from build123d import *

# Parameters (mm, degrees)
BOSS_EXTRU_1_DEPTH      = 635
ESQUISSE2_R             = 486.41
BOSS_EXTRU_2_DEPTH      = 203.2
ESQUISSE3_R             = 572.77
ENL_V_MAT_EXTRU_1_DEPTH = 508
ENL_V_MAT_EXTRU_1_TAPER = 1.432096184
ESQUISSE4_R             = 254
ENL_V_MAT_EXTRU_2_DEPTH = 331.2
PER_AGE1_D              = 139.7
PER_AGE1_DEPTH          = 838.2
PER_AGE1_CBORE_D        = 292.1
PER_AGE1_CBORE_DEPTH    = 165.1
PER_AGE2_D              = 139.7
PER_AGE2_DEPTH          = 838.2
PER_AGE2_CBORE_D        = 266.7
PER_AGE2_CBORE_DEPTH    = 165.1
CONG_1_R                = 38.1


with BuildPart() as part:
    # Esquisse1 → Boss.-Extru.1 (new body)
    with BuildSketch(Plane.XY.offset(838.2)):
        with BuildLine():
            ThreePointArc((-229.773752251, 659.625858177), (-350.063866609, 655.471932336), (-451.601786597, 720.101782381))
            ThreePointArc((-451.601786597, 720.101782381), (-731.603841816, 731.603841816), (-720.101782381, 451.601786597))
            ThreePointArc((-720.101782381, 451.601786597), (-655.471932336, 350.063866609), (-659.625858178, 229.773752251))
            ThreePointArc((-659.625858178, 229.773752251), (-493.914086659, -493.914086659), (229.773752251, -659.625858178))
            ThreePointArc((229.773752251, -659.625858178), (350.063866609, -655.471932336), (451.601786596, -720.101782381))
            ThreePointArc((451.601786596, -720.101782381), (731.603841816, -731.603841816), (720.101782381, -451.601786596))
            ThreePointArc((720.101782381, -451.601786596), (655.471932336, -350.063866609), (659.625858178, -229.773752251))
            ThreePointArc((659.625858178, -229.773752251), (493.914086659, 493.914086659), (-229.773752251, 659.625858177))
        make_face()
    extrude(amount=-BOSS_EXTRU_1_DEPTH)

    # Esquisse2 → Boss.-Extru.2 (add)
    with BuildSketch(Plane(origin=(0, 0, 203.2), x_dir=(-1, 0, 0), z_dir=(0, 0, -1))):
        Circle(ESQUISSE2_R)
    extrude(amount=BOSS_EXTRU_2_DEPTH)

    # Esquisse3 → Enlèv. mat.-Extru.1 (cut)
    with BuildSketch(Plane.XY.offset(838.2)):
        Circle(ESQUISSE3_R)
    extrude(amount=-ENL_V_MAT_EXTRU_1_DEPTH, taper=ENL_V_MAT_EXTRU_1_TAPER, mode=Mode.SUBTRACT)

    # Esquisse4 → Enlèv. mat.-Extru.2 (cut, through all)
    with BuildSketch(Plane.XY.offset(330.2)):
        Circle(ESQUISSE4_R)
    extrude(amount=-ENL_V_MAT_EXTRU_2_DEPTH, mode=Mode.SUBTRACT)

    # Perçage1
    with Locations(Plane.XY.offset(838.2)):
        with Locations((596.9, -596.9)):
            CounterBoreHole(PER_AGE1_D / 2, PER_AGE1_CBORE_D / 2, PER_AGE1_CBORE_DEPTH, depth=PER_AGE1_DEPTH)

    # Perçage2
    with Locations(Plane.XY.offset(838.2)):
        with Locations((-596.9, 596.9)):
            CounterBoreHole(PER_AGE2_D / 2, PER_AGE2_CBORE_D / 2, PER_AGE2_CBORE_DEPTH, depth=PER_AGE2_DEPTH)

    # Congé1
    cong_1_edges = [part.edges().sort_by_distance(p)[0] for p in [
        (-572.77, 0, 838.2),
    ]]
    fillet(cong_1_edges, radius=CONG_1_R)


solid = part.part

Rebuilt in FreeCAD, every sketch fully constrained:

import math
import FreeCAD as App
import Part
import Sketcher
from FreeCAD import Vector
Q = App.Units.Quantity


def edges_at(feature, points):
    """Names of the edges that pass closest to the given points."""
    edges = feature.Shape.Edges
    near = lambda p: min(range(len(edges)), key=lambda i: edges[i].distToShape(Part.Vertex(*p))[0])
    return sorted({f"Edge{near(p) + 1}" for p in points})

doc = App.newDocument("Part")
params = doc.addObject("Spreadsheet::Sheet", "Params")
for row, (alias, value) in enumerate([
    ("sketch1_radius", "8 in"),
    ("sketch1_radius2", "7.5 in"),
    ("sketch1_radius3", "27.5 in"),
    ("pad1_length", "25 in"),
    ("sketch2_diameter", "38.3 in"),
    ("pad2_length", "8 in"),
    ("sketch3_diameter", "45.1 in"),
    ("pocket1_length", "20 in"),
    ("pocket1_taper", "-1.432096 deg"),
    ("sketch4_diameter", "20 in"),
    ("sketch5_diameter", "5.5 in"),
    ("hole_diameter", "5.5 in"),
    ("hole_depth", "33 in"),
    ("hole_cbore_diameter", "11.5 in"),
    ("hole_cbore_depth", "6.5 in"),
    ("sketch6_diameter", "5.5 in"),
    ("hole2_diameter", "5.5 in"),
    ("hole2_depth", "33 in"),
    ("hole2_cbore_diameter", "10.5 in"),
    ("hole2_cbore_depth", "6.5 in"),
    ("fillet_radius", "1.5 in"),
], start=1):
    params.set(f"A{row}", alias)
    params.set(f"B{row}", "=" + value)
    params.setAlias(f"B{row}", alias)

body = doc.addObject("PartDesign::Body", "Body")

sketch1 = body.newObject("Sketcher::SketchObject", "Sketch")
sketch1.AttachmentSupport = (doc.getObject("XY_Plane"), [""])
sketch1.MapMode = "FlatFace"
sketch1.AttachmentOffset = App.Placement(Vector(0, 0, 33 * 25.4), App.Rotation())
sketch1.addGeometry(Part.ArcOfCircle(Part.Circle(Vector(-297, 852, 0), Vector(0, 0, 1), 203), math.radians(-140), math.radians(-71)), False)
sketch1.addGeometry(Part.ArcOfCircle(Part.Circle(Vector(-597, 597, 0), Vector(0, 0, 1), 190), math.radians(40), math.radians(230)), False)
sketch1.addGeometry(Part.ArcOfCircle(Part.Circle(Vector(-852, 297, 0), Vector(0, 0, 1), 203), math.radians(-19), math.radians(50)), False)
sketch1.addGeometry(Part.ArcOfCircle(Part.Circle(Vector(0, 0, 0), Vector(0, 0, 1), 699), math.radians(161), math.radians(289)), False)
sketch1.addGeometry(Part.ArcOfCircle(Part.Circle(Vector(297, -852, 0), Vector(0, 0, 1), 203), math.radians(40), math.radians(109)), False)
sketch1.addGeometry(Part.ArcOfCircle(Part.Circle(Vector(597, -597, 0), Vector(0, 0, 1), 191), math.radians(-140), math.radians(50)), False)
sketch1.addGeometry(Part.ArcOfCircle(Part.Circle(Vector(852, -297, 0), Vector(0, 0, 1), 203), math.radians(161), math.radians(230)), False)
sketch1.addGeometry(Part.ArcOfCircle(Part.Circle(Vector(0, 0, 0), Vector(0, 0, 1), 698), math.radians(-19), math.radians(109)), False)
sketch1.addConstraint(Sketcher.Constraint("Tangent", 0, 1, 1, 1))
sketch1.addConstraint(Sketcher.Constraint("Tangent", 1, 2, 2, 2))
sketch1.addConstraint(Sketcher.Constraint("Tangent", 2, 1, 3, 1))
sketch1.addConstraint(Sketcher.Constraint("Tangent", 3, 2, 4, 2))
sketch1.addConstraint(Sketcher.Constraint("Tangent", 4, 1, 5, 1))
sketch1.addConstraint(Sketcher.Constraint("Tangent", 5, 2, 6, 2))
sketch1.addConstraint(Sketcher.Constraint("Tangent", 6, 1, 7, 1))
sketch1.addConstraint(Sketcher.Constraint("Tangent", 7, 2, 0, 2))
sketch1.addConstraint(Sketcher.Constraint("Coincident", 3, 3, -1, 1))
sketch1.addConstraint(Sketcher.Constraint("Coincident", 7, 3, -1, 1))
sketch1.addConstraint(Sketcher.Constraint("Equal", 0, 2))
sketch1.addConstraint(Sketcher.Constraint("Equal", 2, 4))
sketch1.addConstraint(Sketcher.Constraint("Equal", 1, 5))
sketch1.addConstraint(Sketcher.Constraint("Equal", 4, 6))
sketch1.addConstraint(Sketcher.Constraint("Equal", 3, 7))
sketch1.addConstraint(Sketcher.Constraint("Symmetric", 1, 3, 5, 3, -1, 1))
sketch1.addConstraint(Sketcher.Constraint("Radius", 0, Q("8 in")))
sketch1.addConstraint(Sketcher.Constraint("Radius", 1, Q("7.5 in")))
sketch1.addConstraint(Sketcher.Constraint("Radius", 3, Q("27.5 in")))
sketch1.addConstraint(Sketcher.Constraint("DistanceX", 1, 3, 5, 3, Q("47 in")))
sketch1.addConstraint(Sketcher.Constraint("DistanceY", 5, 3, 1, 3, Q("47 in")))
sketch1.setExpression("Constraints[16]", "Params.sketch1_radius")
sketch1.setExpression("Constraints[17]", "Params.sketch1_radius2")
sketch1.setExpression("Constraints[18]", "Params.sketch1_radius3")
pad1 = body.newObject("PartDesign::Pad", "Pad")
pad1.Profile = sketch1
pad1.setExpression("Length", "Params.pad1_length")
pad1.Reversed = True

sketch2 = body.newObject("Sketcher::SketchObject", "Sketch001")
sketch2.AttachmentSupport = (doc.getObject("XY_Plane"), [""])
sketch2.MapMode = "FlatFace"
sketch2.AttachmentOffset = App.Placement(Vector(0, 0, 8 * 25.4), App.Rotation())
sketch2.addGeometry(Part.Circle(Vector(0, 0, 0), Vector(0, 0, 1), 486), False)
sketch2.addConstraint(Sketcher.Constraint("Coincident", 0, 3, -1, 1))
sketch2.addConstraint(Sketcher.Constraint("Diameter", 0, Q("38.3 in")))
sketch2.setExpression("Constraints[1]", "Params.sketch2_diameter")
pad2 = body.newObject("PartDesign::Pad", "Pad001")
pad2.Profile = sketch2
pad2.setExpression("Length", "Params.pad2_length")
pad2.Reversed = True

sketch3 = body.newObject("Sketcher::SketchObject", "Sketch002")
sketch3.AttachmentSupport = (doc.getObject("XY_Plane"), [""])
sketch3.MapMode = "FlatFace"
sketch3.AttachmentOffset = App.Placement(Vector(0, 0, 33 * 25.4), App.Rotation())
sketch3.addGeometry(Part.Circle(Vector(0, 0, 0), Vector(0, 0, 1), 573), False)
sketch3.addConstraint(Sketcher.Constraint("Coincident", 0, 3, -1, 1))
sketch3.addConstraint(Sketcher.Constraint("Diameter", 0, Q("45.1 in")))
sketch3.setExpression("Constraints[1]", "Params.sketch3_diameter")
pocket1 = body.newObject("PartDesign::Pocket", "Pocket")
pocket1.Profile = sketch3
pocket1.setExpression("Length", "Params.pocket1_length")
pocket1.setExpression("TaperAngle", "Params.pocket1_taper")

sketch4 = body.newObject("Sketcher::SketchObject", "Sketch003")
sketch4.AttachmentSupport = (doc.getObject("XY_Plane"), [""])
sketch4.MapMode = "FlatFace"
sketch4.AttachmentOffset = App.Placement(Vector(0, 0, 13 * 25.4), App.Rotation())
sketch4.addGeometry(Part.Circle(Vector(0, 0, 0), Vector(0, 0, 1), 254), False)
sketch4.addConstraint(Sketcher.Constraint("Coincident", 0, 3, -1, 1))
sketch4.addConstraint(Sketcher.Constraint("Diameter", 0, Q("20 in")))
sketch4.setExpression("Constraints[1]", "Params.sketch4_diameter")
pocket2 = body.newObject("PartDesign::Pocket", "Pocket001")
pocket2.Profile = sketch4
pocket2.Type = "ThroughAll"

sketch5 = body.newObject("Sketcher::SketchObject", "Sketch004")
sketch5.AttachmentSupport = (doc.getObject("XY_Plane"), [""])
sketch5.MapMode = "FlatFace"
sketch5.AttachmentOffset = App.Placement(Vector(0, 0, 33 * 25.4), App.Rotation())
sketch5.addGeometry(Part.Circle(Vector(597, -597, 0), Vector(0, 0, 1), 70), False)
sketch5.addConstraint(Sketcher.Constraint("Diameter", 0, Q("5.5 in")))
sketch5.addConstraint(Sketcher.Constraint("DistanceX", -1, 1, 0, 3, Q("23.5 in")))
sketch5.addConstraint(Sketcher.Constraint("DistanceY", 0, 3, -1, 1, Q("23.5 in")))
sketch5.setExpression("Constraints[0]", "Params.sketch5_diameter")
doc.recompute()
hole = body.newObject("PartDesign::Hole", "Hole")
hole.Profile = sketch5
hole.ThreadType = "None"
hole.setExpression("Diameter", "Params.hole_diameter")
hole.DepthType = "Dimension"
hole.setExpression("Depth", "Params.hole_depth")
hole.DrillPoint = "Flat"
hole.HoleCutType = "Counterbore"
hole.setExpression("HoleCutDiameter", "Params.hole_cbore_diameter")
hole.setExpression("HoleCutDepth", "Params.hole_cbore_depth")

sketch6 = body.newObject("Sketcher::SketchObject", "Sketch005")
sketch6.AttachmentSupport = (doc.getObject("XY_Plane"), [""])
sketch6.MapMode = "FlatFace"
sketch6.AttachmentOffset = App.Placement(Vector(0, 0, 33 * 25.4), App.Rotation())
sketch6.addGeometry(Part.Circle(Vector(-597, 597, 0), Vector(0, 0, 1), 70), False)
sketch6.addConstraint(Sketcher.Constraint("Diameter", 0, Q("5.5 in")))
sketch6.addConstraint(Sketcher.Constraint("DistanceX", 0, 3, -1, 1, Q("23.5 in")))
sketch6.addConstraint(Sketcher.Constraint("DistanceY", -1, 1, 0, 3, Q("23.5 in")))
sketch6.setExpression("Constraints[0]", "Params.sketch6_diameter")
doc.recompute()
hole2 = body.newObject("PartDesign::Hole", "Hole001")
hole2.Profile = sketch6
hole2.ThreadType = "None"
hole2.setExpression("Diameter", "Params.hole2_diameter")
hole2.DepthType = "Dimension"
hole2.setExpression("Depth", "Params.hole2_depth")
hole2.DrillPoint = "Flat"
hole2.HoleCutType = "Counterbore"
hole2.setExpression("HoleCutDiameter", "Params.hole2_cbore_diameter")
hole2.setExpression("HoleCutDepth", "Params.hole2_cbore_depth")
doc.recompute()

fillet = body.newObject("PartDesign::Fillet", "Fillet")
fillet.Base = (hole2, edges_at(hole2, [(-572.77, 0, 838.2)]))
fillet.setExpression("Radius", "Params.fillet_radius")

doc.recompute()
